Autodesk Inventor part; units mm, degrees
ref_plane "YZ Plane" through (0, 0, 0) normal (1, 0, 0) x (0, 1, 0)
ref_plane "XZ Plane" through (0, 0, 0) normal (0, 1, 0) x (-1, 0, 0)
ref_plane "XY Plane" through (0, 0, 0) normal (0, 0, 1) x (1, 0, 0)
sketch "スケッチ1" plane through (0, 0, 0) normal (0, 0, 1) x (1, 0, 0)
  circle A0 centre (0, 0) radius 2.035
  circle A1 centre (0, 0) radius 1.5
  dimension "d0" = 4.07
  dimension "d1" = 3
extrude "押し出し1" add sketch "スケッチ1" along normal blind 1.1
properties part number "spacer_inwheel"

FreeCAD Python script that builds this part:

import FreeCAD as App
import Part
import Sketcher

V = App.Vector

doc = App.newDocument("Part")
body = doc.addObject("PartDesign::Body", "Body")

sketch1 = body.newObject("Sketcher::SketchObject", "Sketch")
sketch1.AttachmentSupport = (doc.getObject("XY_Plane"), [""])
sketch1.MapMode = "FlatFace"
sketch1.addGeometry(Part.Circle(V(0, 0, 0), V(0, 0, 1), 2), False)
sketch1.addGeometry(Part.Circle(V(0, 0, 0), V(0, 0, 1), 1.5), False)
sketch1.addConstraint(Sketcher.Constraint("Coincident", 0, 3, -1, 1))
sketch1.addConstraint(Sketcher.Constraint("Coincident", 1, 3, -1, 1))
sketch1.addConstraint(Sketcher.Constraint("Diameter", 1, 3.0))
sketch1.addConstraint(Sketcher.Constraint("Diameter", 0, 4.07))
pad1 = body.newObject("PartDesign::Pad", "Pad")
pad1.Profile = sketch1
pad1.Length = 1.1

doc.recompute()
